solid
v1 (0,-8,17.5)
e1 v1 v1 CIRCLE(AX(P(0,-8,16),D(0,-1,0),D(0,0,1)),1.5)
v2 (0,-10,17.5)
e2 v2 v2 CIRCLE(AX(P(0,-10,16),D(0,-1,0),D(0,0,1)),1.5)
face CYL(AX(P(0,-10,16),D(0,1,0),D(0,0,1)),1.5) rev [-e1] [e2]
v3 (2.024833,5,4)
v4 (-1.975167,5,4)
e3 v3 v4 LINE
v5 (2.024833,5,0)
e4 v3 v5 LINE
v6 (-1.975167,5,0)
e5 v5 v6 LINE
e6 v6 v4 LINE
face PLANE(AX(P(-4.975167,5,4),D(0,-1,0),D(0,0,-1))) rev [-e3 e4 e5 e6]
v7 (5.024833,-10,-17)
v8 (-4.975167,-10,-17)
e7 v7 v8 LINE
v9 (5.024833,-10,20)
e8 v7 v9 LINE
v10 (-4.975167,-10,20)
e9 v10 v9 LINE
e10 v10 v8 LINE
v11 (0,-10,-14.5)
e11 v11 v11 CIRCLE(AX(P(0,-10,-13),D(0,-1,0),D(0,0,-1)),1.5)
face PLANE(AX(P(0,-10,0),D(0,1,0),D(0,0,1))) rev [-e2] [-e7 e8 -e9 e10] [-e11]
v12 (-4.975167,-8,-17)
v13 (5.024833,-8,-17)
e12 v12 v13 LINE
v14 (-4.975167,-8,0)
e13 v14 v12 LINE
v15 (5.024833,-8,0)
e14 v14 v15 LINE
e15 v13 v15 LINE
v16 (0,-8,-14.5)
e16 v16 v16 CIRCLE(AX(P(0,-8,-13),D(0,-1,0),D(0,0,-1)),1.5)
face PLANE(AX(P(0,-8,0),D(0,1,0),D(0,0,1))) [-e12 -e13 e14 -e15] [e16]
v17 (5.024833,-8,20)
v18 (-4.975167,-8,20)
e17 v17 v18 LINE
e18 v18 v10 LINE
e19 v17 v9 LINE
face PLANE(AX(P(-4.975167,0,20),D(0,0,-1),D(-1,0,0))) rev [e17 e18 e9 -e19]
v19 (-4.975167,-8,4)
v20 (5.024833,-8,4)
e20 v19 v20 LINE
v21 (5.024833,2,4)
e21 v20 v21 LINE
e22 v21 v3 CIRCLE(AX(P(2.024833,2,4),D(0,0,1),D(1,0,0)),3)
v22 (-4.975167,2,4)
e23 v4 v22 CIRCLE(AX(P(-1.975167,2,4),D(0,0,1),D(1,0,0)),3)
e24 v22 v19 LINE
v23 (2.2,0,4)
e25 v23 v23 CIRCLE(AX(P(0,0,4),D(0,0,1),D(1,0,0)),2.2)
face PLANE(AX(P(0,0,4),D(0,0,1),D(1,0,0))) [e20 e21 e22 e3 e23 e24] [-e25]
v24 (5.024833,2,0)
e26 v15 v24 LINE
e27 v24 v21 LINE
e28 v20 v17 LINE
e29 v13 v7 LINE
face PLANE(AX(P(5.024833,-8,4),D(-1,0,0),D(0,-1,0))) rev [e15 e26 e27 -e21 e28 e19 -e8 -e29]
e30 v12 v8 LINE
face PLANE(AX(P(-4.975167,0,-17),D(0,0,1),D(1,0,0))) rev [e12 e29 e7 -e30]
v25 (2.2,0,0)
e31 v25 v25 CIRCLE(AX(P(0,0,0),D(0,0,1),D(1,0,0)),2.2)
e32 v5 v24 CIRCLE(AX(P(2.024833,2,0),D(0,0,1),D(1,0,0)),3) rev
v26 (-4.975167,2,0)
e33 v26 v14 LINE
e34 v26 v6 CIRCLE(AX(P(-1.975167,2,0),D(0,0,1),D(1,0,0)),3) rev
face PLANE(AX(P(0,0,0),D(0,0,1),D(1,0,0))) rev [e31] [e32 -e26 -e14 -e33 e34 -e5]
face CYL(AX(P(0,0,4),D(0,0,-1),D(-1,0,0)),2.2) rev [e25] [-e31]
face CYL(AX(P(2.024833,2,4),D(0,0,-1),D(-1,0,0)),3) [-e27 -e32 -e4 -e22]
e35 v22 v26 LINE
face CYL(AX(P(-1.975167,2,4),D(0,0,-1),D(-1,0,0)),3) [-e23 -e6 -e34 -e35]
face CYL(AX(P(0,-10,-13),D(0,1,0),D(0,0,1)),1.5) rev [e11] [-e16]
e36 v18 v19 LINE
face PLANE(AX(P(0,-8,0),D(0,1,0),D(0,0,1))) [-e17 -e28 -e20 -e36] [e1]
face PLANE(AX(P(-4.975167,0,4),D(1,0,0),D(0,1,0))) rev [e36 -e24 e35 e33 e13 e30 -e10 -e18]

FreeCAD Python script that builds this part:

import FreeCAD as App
import Part
import Sketcher

V = App.Vector
Q = App.Units.Quantity


def edges_at(feature, points):
    """Names of the edges that pass closest to the given points."""
    edges = feature.Shape.Edges
    near = lambda p: min(range(len(edges)), key=lambda i: edges[i].distToShape(Part.Vertex(*p))[0])
    return sorted({f"Edge{near(p) + 1}" for p in points})

doc = App.newDocument("Part")
params = doc.addObject("Spreadsheet::Sheet", "Params")
for row, (alias, value) in enumerate([
    ("sketch1_diameter", "4.4 mm"),
    ("sketch1_width", "10 mm"),
    ("sketch1_height", "13 mm"),
    ("pad1_length", "4 mm"),
    ("sketch2_diameter", "3 mm"),
    ("sketch2_width", "10 mm"),
    ("sketch2_height", "39 mm"),
    ("pad2_length", "2 mm"),
    ("fillet_radius", "3 mm"),
    ("sketch3_width", "10 mm"),
    ("sketch3_height", "1 mm"),
    ("pocket1_length", "10 mm"),
], start=1):
    params.set(f"A{row}", alias)
    params.set(f"B{row}", "=" + value)
    params.setAlias(f"B{row}", alias)

body = doc.addObject("PartDesign::Body", "Body")

# Sketch on XY plane
sketch1 = body.newObject("Sketcher::SketchObject", "Sketch")
sketch1.AttachmentSupport = (doc.getObject("XY_Plane"), [""])
sketch1.MapMode = "FlatFace"
sketch1.addGeometry([
    Part.LineSegment(V(-5, -8, 0), V(5, -8, 0)),  # 0
    Part.LineSegment(V(5, -8, 0), V(5, 5, 0)),  # 1
    Part.LineSegment(V(5, 5, 0), V(-5, 5, 0)),  # 2
    Part.LineSegment(V(-5, 5, 0), V(-5, -8, 0)),  # 3
    Part.Circle(V(0, 0, 0), V(0, 0, 1), 2.2),  # 4
], False)
sketch1.addConstraint([
    Sketcher.Constraint("Coincident", 0, 2, 1, 1),
    Sketcher.Constraint("Coincident", 1, 2, 2, 1),
    Sketcher.Constraint("Coincident", 2, 2, 3, 1),
    Sketcher.Constraint("Coincident", 3, 2, 0, 1),
    Sketcher.Constraint("Horizontal", 0),
    Sketcher.Constraint("Vertical", 1),
    Sketcher.Constraint("Horizontal", 2),
    Sketcher.Constraint("Vertical", 3),
    Sketcher.Constraint("Coincident", 4, 3, -1, 1),
    Sketcher.Constraint("Diameter", 4, Q("4.4 mm")),
    Sketcher.Constraint("DistanceX", 0, 1, 0, 2, Q("10 mm")),
    Sketcher.Constraint("DistanceY", 1, 1, 1, 2, Q("13 mm")),
    Sketcher.Constraint("DistanceY", 0, 2, -1, 1, Q("8 mm")),
    Sketcher.Constraint("DistanceX", -1, 1, 0, 2, Q("5.024833 mm")),
])
sketch1.setExpression("Constraints[9]", "Params.sketch1_diameter")
sketch1.setExpression("Constraints[10]", "Params.sketch1_width")
sketch1.setExpression("Constraints[11]", "Params.sketch1_height")
pad1 = body.newObject("PartDesign::Pad", "Pad")
pad1.Profile = sketch1
pad1.setExpression("Length", "Params.pad1_length")

# Sketch on XZ plane
sketch2 = body.newObject("Sketcher::SketchObject", "Sketch001")
sketch2.AttachmentSupport = (doc.getObject("XZ_Plane"), [""])
sketch2.MapMode = "FlatFace"
sketch2.AttachmentOffset = App.Placement(V(0, 0, 8), App.Rotation())
sketch2.addGeometry([
    Part.LineSegment(V(5, -18, 0), V(5, 21, 0)),  # 0
    Part.LineSegment(V(5, 21, 0), V(-5, 21, 0)),  # 1
    Part.LineSegment(V(-5, 21, 0), V(-5, -18, 0)),  # 2
    Part.LineSegment(V(-5, -18, 0), V(5, -18, 0)),  # 3
    Part.Circle(V(0, -13, 0), V(0, 0, 1), 1.5),  # 4
    Part.Circle(V(0, 16, 0), V(0, 0, 1), 1.5),  # 5
], False)
sketch2.addConstraint([
    Sketcher.Constraint("Coincident", 0, 2, 1, 1),
    Sketcher.Constraint("Coincident", 1, 2, 2, 1),
    Sketcher.Constraint("Coincident", 2, 2, 3, 1),
    Sketcher.Constraint("Coincident", 3, 2, 0, 1),
    Sketcher.Constraint("Vertical", 0),
    Sketcher.Constraint("Horizontal", 1),
    Sketcher.Constraint("Vertical", 2),
    Sketcher.Constraint("Horizontal", 3),
    Sketcher.Constraint("Equal", 4, 5),
    Sketcher.Constraint("PointOnObject", 4, 3, -2),
    Sketcher.Constraint("PointOnObject", 5, 3, -2),
    Sketcher.Constraint("Diameter", 4, Q("3 mm")),
    Sketcher.Constraint("DistanceX", 1, 2, 1, 1, Q("10 mm")),
    Sketcher.Constraint("DistanceY", 0, 1, 0, 2, Q("39 mm")),
    Sketcher.Constraint("DistanceY", 4, 3, -1, 1, Q("13 mm")),
    Sketcher.Constraint("DistanceY", -1, 1, 5, 3, Q("16 mm")),
    Sketcher.Constraint("DistanceY", -1, 1, 0, 2, Q("21 mm")),
    Sketcher.Constraint("DistanceX", -1, 1, 0, 2, Q("5.024833 mm")),
])
sketch2.setExpression("Constraints[11]", "Params.sketch2_diameter")
sketch2.setExpression("Constraints[12]", "Params.sketch2_width")
sketch2.setExpression("Constraints[13]", "Params.sketch2_height")
pad2 = body.newObject("PartDesign::Pad", "Pad001")
pad2.Profile = sketch2
pad2.setExpression("Length", "Params.pad2_length")
doc.recompute()

fillet = body.newObject("PartDesign::Fillet", "Fillet")
fillet.Base = (pad2, edges_at(pad2, [(-4.975, 5, 2), (5.025, 5, 2)]))
fillet.setExpression("Radius", "Params.fillet_radius")

# Sketch on XZ plane
sketch3 = body.newObject("Sketcher::SketchObject", "Sketch002")
sketch3.AttachmentSupport = (doc.getObject("XZ_Plane"), [""])
sketch3.MapMode = "FlatFace"
sketch3.AttachmentOffset = App.Placement(V(0, 0, 10), App.Rotation())
sketch3.addGeometry([
    Part.LineSegment(V(-5, 21, 0), V(-5, 20, 0)),  # 0
    Part.LineSegment(V(-5, 20, 0), V(5, 20, 0)),  # 1
    Part.LineSegment(V(5, 20, 0), V(5, 21, 0)),  # 2
    Part.LineSegment(V(5, 21, 0), V(-5, 21, 0)),  # 3
    Part.LineSegment(V(-5, -17, 0), V(-5, -18, 0)),  # 4
    Part.LineSegment(V(-5, -18, 0), V(5, -18, 0)),  # 5
    Part.LineSegment(V(5, -18, 0), V(5, -17, 0)),  # 6
    Part.LineSegment(V(5, -17, 0), V(-5, -17, 0)),  # 7
], False)
sketch3.addConstraint([
    Sketcher.Constraint("Coincident", 0, 2, 1, 1),
    Sketcher.Constraint("Coincident", 1, 2, 2, 1),
    Sketcher.Constraint("Coincident", 2, 2, 3, 1),
    Sketcher.Constraint("Coincident", 3, 2, 0, 1),
    Sketcher.Constraint("Coincident", 4, 2, 5, 1),
    Sketcher.Constraint("Coincident", 5, 2, 6, 1),
    Sketcher.Constraint("Coincident", 6, 2, 7, 1),
    Sketcher.Constraint("Coincident", 7, 2, 4, 1),
    Sketcher.Constraint("Vertical", 0),
    Sketcher.Constraint("Horizontal", 1),
    Sketcher.Constraint("Vertical", 2),
    Sketcher.Constraint("Horizontal", 3),
    Sketcher.Constraint("Vertical", 4),
    Sketcher.Constraint("Horizontal", 5),
    Sketcher.Constraint("Vertical", 6),
    Sketcher.Constraint("Horizontal", 7),
    Sketcher.Constraint("Vertical", 3, 2, 4, 2),
    Sketcher.Constraint("Vertical", 2, 2, 5, 2),
    Sketcher.Constraint("Equal", 2, 4),
    Sketcher.Constraint("DistanceX", 1, 1, 1, 2, Q("10 mm")),
    Sketcher.Constraint("DistanceY", 0, 2, 0, 1, Q("1 mm")),
    Sketcher.Constraint("DistanceY", -1, 1, 0, 2, Q("20 mm")),
    Sketcher.Constraint("DistanceY", 4, 2, -1, 1, Q("18 mm")),
    Sketcher.Constraint("DistanceX", 0, 2, -1, 1, Q("4.975167 mm")),
])
sketch3.setExpression("Constraints[19]", "Params.sketch3_width")
sketch3.setExpression("Constraints[20]", "Params.sketch3_height")
pocket1 = body.newObject("PartDesign::Pocket", "Pocket")
pocket1.Profile = sketch3
pocket1.setExpression("Length", "Params.pocket1_length")

doc.recompute()
